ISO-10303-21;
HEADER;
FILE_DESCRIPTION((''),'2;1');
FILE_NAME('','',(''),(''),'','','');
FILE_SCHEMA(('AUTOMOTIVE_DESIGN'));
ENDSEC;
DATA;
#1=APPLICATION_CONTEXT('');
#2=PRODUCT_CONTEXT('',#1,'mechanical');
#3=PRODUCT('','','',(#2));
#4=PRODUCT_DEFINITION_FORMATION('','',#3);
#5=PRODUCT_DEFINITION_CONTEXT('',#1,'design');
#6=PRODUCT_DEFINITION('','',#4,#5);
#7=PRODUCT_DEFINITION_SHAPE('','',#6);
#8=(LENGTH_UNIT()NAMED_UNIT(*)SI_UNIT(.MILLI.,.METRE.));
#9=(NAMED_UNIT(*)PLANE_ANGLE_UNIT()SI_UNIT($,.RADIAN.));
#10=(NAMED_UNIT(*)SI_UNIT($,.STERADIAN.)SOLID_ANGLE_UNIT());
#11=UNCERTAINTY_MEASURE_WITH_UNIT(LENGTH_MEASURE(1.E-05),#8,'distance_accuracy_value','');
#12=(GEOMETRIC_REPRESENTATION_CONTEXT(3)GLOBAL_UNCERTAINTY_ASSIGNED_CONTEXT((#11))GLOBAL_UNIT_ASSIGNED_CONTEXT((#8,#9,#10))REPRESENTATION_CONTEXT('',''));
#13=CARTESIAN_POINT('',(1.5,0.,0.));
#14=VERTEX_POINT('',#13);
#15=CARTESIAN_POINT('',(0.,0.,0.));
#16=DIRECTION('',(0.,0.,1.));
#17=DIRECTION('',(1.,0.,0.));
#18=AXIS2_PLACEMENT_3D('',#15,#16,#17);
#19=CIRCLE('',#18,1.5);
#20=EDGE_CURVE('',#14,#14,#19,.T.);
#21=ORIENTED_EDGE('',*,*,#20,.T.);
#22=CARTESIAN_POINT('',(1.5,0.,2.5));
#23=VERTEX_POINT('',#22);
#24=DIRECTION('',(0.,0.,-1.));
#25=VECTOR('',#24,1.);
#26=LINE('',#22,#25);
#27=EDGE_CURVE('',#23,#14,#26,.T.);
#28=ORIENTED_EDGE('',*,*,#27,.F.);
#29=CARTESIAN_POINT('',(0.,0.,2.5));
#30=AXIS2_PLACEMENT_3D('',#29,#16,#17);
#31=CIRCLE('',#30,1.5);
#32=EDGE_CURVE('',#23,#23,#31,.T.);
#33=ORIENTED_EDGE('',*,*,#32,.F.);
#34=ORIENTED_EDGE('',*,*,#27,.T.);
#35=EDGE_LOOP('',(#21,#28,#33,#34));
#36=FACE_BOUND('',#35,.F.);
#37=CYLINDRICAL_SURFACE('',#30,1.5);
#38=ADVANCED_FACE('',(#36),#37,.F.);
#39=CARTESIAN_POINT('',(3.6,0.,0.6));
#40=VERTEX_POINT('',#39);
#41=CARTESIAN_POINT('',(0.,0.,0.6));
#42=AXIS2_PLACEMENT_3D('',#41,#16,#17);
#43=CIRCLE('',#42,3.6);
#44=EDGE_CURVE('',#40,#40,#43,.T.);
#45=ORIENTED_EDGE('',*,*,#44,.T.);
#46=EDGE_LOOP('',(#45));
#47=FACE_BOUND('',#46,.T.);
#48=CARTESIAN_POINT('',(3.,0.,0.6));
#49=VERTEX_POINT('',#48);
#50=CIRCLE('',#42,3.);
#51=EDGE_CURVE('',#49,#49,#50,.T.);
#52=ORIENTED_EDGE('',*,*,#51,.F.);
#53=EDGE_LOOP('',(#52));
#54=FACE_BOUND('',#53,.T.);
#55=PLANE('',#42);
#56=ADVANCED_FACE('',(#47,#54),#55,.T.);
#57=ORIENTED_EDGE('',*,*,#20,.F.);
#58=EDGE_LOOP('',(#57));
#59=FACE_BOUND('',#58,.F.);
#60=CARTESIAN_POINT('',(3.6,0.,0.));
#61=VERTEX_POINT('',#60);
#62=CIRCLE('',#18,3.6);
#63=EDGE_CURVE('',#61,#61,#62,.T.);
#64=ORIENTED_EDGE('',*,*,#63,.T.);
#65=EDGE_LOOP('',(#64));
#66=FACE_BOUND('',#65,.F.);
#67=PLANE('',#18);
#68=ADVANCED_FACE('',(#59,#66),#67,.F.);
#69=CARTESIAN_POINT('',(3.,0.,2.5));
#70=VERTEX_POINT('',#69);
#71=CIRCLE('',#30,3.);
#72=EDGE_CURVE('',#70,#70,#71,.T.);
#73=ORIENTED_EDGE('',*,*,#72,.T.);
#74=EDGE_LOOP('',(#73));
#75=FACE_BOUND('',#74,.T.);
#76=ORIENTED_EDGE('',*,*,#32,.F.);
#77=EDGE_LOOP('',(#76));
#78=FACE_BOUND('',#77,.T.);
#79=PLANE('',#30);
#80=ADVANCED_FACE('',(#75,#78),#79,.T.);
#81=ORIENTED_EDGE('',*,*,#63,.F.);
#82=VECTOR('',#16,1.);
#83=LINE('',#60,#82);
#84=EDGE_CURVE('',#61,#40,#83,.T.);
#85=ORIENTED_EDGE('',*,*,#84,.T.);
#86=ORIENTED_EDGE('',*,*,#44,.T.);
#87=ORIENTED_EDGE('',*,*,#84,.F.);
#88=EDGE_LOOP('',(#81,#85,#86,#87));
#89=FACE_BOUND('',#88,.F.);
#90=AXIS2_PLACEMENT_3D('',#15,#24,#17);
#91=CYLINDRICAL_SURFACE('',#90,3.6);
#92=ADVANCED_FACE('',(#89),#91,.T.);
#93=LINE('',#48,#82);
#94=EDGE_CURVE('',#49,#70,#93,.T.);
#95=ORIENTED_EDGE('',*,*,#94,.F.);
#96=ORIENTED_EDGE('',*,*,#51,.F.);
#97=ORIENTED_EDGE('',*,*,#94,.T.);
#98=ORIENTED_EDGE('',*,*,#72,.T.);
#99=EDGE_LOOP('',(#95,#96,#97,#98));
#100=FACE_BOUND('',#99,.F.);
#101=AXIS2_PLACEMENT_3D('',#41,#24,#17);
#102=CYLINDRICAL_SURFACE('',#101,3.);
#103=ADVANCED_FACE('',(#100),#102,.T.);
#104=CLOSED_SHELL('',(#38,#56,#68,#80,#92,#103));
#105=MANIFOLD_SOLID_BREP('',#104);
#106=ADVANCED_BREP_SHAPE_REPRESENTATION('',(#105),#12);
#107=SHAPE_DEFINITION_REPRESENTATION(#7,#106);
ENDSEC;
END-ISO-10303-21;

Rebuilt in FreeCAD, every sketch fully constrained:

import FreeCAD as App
import Part
import Sketcher
from FreeCAD import Vector

doc = App.newDocument("Part")
params = doc.addObject("Spreadsheet::Sheet", "Params")
for row, (alias, value) in enumerate([
    ("sketch1_diameter", "7.2 mm"),
    ("pad1_length", "0.6 mm"),
    ("sketch2_diameter", "6 mm"),
    ("pad2_length", "1.9 mm"),
    ("sketch3_diameter", "3 mm"),
], start=1):
    params.set(f"A{row}", alias)
    params.set(f"B{row}", "=" + value)
    params.setAlias(f"B{row}", alias)

body = doc.addObject("PartDesign::Body", "Body")

# Sketch on XY plane
sketch1 = body.newObject("Sketcher::SketchObject", "Sketch")
sketch1.AttachmentSupport = (doc.getObject("XY_Plane"), [""])
sketch1.MapMode = "FlatFace"
sketch1.addGeometry(Part.Circle(Vector(0, 0, 0), Vector(0, 0, 1), 3.6), False)
sketch1.addConstraint([
    Sketcher.Constraint("Coincident", 0, 3, -1, 1),
    Sketcher.Constraint("Diameter", 0, 7.2),
])
sketch1.setExpression("Constraints[1]", "Params.sketch1_diameter")
pad1 = body.newObject("PartDesign::Pad", "Pad")
pad1.Profile = sketch1
pad1.setExpression("Length", "Params.pad1_length")

# Sketch on XY plane
sketch2 = body.newObject("Sketcher::SketchObject", "Sketch001")
sketch2.AttachmentSupport = (doc.getObject("XY_Plane"), [""])
sketch2.MapMode = "FlatFace"
sketch2.AttachmentOffset = App.Placement(Vector(0, 0, 0.6), App.Rotation())
sketch2.addGeometry(Part.Circle(Vector(0, 0, 0), Vector(0, 0, 1), 3), False)
sketch2.addConstraint([
    Sketcher.Constraint("Coincident", 0, 3, -1, 1),
    Sketcher.Constraint("Diameter", 0, 6.0),
])
sketch2.setExpression("Constraints[1]", "Params.sketch2_diameter")
pad2 = body.newObject("PartDesign::Pad", "Pad001")
pad2.Profile = sketch2
pad2.setExpression("Length", "Params.pad2_length")

# Sketch on XY plane
sketch3 = body.newObject("Sketcher::SketchObject", "Sketch002")
sketch3.AttachmentSupport = (doc.getObject("XY_Plane"), [""])
sketch3.MapMode = "FlatFace"
sketch3.AttachmentOffset = App.Placement(Vector(0, 0, 2.5), App.Rotation())
sketch3.addGeometry(Part.Circle(Vector(0, 0, 0), Vector(0, 0, 1), 1.5), False)
sketch3.addConstraint([
    Sketcher.Constraint("Coincident", 0, 3, -1, 1),
    Sketcher.Constraint("Diameter", 0, 3.0),
])
sketch3.setExpression("Constraints[1]", "Params.sketch3_diameter")
pocket1 = body.newObject("PartDesign::Pocket", "Pocket")
pocket1.Profile = sketch3
pocket1.Type = "ThroughAll"

doc.recompute()
